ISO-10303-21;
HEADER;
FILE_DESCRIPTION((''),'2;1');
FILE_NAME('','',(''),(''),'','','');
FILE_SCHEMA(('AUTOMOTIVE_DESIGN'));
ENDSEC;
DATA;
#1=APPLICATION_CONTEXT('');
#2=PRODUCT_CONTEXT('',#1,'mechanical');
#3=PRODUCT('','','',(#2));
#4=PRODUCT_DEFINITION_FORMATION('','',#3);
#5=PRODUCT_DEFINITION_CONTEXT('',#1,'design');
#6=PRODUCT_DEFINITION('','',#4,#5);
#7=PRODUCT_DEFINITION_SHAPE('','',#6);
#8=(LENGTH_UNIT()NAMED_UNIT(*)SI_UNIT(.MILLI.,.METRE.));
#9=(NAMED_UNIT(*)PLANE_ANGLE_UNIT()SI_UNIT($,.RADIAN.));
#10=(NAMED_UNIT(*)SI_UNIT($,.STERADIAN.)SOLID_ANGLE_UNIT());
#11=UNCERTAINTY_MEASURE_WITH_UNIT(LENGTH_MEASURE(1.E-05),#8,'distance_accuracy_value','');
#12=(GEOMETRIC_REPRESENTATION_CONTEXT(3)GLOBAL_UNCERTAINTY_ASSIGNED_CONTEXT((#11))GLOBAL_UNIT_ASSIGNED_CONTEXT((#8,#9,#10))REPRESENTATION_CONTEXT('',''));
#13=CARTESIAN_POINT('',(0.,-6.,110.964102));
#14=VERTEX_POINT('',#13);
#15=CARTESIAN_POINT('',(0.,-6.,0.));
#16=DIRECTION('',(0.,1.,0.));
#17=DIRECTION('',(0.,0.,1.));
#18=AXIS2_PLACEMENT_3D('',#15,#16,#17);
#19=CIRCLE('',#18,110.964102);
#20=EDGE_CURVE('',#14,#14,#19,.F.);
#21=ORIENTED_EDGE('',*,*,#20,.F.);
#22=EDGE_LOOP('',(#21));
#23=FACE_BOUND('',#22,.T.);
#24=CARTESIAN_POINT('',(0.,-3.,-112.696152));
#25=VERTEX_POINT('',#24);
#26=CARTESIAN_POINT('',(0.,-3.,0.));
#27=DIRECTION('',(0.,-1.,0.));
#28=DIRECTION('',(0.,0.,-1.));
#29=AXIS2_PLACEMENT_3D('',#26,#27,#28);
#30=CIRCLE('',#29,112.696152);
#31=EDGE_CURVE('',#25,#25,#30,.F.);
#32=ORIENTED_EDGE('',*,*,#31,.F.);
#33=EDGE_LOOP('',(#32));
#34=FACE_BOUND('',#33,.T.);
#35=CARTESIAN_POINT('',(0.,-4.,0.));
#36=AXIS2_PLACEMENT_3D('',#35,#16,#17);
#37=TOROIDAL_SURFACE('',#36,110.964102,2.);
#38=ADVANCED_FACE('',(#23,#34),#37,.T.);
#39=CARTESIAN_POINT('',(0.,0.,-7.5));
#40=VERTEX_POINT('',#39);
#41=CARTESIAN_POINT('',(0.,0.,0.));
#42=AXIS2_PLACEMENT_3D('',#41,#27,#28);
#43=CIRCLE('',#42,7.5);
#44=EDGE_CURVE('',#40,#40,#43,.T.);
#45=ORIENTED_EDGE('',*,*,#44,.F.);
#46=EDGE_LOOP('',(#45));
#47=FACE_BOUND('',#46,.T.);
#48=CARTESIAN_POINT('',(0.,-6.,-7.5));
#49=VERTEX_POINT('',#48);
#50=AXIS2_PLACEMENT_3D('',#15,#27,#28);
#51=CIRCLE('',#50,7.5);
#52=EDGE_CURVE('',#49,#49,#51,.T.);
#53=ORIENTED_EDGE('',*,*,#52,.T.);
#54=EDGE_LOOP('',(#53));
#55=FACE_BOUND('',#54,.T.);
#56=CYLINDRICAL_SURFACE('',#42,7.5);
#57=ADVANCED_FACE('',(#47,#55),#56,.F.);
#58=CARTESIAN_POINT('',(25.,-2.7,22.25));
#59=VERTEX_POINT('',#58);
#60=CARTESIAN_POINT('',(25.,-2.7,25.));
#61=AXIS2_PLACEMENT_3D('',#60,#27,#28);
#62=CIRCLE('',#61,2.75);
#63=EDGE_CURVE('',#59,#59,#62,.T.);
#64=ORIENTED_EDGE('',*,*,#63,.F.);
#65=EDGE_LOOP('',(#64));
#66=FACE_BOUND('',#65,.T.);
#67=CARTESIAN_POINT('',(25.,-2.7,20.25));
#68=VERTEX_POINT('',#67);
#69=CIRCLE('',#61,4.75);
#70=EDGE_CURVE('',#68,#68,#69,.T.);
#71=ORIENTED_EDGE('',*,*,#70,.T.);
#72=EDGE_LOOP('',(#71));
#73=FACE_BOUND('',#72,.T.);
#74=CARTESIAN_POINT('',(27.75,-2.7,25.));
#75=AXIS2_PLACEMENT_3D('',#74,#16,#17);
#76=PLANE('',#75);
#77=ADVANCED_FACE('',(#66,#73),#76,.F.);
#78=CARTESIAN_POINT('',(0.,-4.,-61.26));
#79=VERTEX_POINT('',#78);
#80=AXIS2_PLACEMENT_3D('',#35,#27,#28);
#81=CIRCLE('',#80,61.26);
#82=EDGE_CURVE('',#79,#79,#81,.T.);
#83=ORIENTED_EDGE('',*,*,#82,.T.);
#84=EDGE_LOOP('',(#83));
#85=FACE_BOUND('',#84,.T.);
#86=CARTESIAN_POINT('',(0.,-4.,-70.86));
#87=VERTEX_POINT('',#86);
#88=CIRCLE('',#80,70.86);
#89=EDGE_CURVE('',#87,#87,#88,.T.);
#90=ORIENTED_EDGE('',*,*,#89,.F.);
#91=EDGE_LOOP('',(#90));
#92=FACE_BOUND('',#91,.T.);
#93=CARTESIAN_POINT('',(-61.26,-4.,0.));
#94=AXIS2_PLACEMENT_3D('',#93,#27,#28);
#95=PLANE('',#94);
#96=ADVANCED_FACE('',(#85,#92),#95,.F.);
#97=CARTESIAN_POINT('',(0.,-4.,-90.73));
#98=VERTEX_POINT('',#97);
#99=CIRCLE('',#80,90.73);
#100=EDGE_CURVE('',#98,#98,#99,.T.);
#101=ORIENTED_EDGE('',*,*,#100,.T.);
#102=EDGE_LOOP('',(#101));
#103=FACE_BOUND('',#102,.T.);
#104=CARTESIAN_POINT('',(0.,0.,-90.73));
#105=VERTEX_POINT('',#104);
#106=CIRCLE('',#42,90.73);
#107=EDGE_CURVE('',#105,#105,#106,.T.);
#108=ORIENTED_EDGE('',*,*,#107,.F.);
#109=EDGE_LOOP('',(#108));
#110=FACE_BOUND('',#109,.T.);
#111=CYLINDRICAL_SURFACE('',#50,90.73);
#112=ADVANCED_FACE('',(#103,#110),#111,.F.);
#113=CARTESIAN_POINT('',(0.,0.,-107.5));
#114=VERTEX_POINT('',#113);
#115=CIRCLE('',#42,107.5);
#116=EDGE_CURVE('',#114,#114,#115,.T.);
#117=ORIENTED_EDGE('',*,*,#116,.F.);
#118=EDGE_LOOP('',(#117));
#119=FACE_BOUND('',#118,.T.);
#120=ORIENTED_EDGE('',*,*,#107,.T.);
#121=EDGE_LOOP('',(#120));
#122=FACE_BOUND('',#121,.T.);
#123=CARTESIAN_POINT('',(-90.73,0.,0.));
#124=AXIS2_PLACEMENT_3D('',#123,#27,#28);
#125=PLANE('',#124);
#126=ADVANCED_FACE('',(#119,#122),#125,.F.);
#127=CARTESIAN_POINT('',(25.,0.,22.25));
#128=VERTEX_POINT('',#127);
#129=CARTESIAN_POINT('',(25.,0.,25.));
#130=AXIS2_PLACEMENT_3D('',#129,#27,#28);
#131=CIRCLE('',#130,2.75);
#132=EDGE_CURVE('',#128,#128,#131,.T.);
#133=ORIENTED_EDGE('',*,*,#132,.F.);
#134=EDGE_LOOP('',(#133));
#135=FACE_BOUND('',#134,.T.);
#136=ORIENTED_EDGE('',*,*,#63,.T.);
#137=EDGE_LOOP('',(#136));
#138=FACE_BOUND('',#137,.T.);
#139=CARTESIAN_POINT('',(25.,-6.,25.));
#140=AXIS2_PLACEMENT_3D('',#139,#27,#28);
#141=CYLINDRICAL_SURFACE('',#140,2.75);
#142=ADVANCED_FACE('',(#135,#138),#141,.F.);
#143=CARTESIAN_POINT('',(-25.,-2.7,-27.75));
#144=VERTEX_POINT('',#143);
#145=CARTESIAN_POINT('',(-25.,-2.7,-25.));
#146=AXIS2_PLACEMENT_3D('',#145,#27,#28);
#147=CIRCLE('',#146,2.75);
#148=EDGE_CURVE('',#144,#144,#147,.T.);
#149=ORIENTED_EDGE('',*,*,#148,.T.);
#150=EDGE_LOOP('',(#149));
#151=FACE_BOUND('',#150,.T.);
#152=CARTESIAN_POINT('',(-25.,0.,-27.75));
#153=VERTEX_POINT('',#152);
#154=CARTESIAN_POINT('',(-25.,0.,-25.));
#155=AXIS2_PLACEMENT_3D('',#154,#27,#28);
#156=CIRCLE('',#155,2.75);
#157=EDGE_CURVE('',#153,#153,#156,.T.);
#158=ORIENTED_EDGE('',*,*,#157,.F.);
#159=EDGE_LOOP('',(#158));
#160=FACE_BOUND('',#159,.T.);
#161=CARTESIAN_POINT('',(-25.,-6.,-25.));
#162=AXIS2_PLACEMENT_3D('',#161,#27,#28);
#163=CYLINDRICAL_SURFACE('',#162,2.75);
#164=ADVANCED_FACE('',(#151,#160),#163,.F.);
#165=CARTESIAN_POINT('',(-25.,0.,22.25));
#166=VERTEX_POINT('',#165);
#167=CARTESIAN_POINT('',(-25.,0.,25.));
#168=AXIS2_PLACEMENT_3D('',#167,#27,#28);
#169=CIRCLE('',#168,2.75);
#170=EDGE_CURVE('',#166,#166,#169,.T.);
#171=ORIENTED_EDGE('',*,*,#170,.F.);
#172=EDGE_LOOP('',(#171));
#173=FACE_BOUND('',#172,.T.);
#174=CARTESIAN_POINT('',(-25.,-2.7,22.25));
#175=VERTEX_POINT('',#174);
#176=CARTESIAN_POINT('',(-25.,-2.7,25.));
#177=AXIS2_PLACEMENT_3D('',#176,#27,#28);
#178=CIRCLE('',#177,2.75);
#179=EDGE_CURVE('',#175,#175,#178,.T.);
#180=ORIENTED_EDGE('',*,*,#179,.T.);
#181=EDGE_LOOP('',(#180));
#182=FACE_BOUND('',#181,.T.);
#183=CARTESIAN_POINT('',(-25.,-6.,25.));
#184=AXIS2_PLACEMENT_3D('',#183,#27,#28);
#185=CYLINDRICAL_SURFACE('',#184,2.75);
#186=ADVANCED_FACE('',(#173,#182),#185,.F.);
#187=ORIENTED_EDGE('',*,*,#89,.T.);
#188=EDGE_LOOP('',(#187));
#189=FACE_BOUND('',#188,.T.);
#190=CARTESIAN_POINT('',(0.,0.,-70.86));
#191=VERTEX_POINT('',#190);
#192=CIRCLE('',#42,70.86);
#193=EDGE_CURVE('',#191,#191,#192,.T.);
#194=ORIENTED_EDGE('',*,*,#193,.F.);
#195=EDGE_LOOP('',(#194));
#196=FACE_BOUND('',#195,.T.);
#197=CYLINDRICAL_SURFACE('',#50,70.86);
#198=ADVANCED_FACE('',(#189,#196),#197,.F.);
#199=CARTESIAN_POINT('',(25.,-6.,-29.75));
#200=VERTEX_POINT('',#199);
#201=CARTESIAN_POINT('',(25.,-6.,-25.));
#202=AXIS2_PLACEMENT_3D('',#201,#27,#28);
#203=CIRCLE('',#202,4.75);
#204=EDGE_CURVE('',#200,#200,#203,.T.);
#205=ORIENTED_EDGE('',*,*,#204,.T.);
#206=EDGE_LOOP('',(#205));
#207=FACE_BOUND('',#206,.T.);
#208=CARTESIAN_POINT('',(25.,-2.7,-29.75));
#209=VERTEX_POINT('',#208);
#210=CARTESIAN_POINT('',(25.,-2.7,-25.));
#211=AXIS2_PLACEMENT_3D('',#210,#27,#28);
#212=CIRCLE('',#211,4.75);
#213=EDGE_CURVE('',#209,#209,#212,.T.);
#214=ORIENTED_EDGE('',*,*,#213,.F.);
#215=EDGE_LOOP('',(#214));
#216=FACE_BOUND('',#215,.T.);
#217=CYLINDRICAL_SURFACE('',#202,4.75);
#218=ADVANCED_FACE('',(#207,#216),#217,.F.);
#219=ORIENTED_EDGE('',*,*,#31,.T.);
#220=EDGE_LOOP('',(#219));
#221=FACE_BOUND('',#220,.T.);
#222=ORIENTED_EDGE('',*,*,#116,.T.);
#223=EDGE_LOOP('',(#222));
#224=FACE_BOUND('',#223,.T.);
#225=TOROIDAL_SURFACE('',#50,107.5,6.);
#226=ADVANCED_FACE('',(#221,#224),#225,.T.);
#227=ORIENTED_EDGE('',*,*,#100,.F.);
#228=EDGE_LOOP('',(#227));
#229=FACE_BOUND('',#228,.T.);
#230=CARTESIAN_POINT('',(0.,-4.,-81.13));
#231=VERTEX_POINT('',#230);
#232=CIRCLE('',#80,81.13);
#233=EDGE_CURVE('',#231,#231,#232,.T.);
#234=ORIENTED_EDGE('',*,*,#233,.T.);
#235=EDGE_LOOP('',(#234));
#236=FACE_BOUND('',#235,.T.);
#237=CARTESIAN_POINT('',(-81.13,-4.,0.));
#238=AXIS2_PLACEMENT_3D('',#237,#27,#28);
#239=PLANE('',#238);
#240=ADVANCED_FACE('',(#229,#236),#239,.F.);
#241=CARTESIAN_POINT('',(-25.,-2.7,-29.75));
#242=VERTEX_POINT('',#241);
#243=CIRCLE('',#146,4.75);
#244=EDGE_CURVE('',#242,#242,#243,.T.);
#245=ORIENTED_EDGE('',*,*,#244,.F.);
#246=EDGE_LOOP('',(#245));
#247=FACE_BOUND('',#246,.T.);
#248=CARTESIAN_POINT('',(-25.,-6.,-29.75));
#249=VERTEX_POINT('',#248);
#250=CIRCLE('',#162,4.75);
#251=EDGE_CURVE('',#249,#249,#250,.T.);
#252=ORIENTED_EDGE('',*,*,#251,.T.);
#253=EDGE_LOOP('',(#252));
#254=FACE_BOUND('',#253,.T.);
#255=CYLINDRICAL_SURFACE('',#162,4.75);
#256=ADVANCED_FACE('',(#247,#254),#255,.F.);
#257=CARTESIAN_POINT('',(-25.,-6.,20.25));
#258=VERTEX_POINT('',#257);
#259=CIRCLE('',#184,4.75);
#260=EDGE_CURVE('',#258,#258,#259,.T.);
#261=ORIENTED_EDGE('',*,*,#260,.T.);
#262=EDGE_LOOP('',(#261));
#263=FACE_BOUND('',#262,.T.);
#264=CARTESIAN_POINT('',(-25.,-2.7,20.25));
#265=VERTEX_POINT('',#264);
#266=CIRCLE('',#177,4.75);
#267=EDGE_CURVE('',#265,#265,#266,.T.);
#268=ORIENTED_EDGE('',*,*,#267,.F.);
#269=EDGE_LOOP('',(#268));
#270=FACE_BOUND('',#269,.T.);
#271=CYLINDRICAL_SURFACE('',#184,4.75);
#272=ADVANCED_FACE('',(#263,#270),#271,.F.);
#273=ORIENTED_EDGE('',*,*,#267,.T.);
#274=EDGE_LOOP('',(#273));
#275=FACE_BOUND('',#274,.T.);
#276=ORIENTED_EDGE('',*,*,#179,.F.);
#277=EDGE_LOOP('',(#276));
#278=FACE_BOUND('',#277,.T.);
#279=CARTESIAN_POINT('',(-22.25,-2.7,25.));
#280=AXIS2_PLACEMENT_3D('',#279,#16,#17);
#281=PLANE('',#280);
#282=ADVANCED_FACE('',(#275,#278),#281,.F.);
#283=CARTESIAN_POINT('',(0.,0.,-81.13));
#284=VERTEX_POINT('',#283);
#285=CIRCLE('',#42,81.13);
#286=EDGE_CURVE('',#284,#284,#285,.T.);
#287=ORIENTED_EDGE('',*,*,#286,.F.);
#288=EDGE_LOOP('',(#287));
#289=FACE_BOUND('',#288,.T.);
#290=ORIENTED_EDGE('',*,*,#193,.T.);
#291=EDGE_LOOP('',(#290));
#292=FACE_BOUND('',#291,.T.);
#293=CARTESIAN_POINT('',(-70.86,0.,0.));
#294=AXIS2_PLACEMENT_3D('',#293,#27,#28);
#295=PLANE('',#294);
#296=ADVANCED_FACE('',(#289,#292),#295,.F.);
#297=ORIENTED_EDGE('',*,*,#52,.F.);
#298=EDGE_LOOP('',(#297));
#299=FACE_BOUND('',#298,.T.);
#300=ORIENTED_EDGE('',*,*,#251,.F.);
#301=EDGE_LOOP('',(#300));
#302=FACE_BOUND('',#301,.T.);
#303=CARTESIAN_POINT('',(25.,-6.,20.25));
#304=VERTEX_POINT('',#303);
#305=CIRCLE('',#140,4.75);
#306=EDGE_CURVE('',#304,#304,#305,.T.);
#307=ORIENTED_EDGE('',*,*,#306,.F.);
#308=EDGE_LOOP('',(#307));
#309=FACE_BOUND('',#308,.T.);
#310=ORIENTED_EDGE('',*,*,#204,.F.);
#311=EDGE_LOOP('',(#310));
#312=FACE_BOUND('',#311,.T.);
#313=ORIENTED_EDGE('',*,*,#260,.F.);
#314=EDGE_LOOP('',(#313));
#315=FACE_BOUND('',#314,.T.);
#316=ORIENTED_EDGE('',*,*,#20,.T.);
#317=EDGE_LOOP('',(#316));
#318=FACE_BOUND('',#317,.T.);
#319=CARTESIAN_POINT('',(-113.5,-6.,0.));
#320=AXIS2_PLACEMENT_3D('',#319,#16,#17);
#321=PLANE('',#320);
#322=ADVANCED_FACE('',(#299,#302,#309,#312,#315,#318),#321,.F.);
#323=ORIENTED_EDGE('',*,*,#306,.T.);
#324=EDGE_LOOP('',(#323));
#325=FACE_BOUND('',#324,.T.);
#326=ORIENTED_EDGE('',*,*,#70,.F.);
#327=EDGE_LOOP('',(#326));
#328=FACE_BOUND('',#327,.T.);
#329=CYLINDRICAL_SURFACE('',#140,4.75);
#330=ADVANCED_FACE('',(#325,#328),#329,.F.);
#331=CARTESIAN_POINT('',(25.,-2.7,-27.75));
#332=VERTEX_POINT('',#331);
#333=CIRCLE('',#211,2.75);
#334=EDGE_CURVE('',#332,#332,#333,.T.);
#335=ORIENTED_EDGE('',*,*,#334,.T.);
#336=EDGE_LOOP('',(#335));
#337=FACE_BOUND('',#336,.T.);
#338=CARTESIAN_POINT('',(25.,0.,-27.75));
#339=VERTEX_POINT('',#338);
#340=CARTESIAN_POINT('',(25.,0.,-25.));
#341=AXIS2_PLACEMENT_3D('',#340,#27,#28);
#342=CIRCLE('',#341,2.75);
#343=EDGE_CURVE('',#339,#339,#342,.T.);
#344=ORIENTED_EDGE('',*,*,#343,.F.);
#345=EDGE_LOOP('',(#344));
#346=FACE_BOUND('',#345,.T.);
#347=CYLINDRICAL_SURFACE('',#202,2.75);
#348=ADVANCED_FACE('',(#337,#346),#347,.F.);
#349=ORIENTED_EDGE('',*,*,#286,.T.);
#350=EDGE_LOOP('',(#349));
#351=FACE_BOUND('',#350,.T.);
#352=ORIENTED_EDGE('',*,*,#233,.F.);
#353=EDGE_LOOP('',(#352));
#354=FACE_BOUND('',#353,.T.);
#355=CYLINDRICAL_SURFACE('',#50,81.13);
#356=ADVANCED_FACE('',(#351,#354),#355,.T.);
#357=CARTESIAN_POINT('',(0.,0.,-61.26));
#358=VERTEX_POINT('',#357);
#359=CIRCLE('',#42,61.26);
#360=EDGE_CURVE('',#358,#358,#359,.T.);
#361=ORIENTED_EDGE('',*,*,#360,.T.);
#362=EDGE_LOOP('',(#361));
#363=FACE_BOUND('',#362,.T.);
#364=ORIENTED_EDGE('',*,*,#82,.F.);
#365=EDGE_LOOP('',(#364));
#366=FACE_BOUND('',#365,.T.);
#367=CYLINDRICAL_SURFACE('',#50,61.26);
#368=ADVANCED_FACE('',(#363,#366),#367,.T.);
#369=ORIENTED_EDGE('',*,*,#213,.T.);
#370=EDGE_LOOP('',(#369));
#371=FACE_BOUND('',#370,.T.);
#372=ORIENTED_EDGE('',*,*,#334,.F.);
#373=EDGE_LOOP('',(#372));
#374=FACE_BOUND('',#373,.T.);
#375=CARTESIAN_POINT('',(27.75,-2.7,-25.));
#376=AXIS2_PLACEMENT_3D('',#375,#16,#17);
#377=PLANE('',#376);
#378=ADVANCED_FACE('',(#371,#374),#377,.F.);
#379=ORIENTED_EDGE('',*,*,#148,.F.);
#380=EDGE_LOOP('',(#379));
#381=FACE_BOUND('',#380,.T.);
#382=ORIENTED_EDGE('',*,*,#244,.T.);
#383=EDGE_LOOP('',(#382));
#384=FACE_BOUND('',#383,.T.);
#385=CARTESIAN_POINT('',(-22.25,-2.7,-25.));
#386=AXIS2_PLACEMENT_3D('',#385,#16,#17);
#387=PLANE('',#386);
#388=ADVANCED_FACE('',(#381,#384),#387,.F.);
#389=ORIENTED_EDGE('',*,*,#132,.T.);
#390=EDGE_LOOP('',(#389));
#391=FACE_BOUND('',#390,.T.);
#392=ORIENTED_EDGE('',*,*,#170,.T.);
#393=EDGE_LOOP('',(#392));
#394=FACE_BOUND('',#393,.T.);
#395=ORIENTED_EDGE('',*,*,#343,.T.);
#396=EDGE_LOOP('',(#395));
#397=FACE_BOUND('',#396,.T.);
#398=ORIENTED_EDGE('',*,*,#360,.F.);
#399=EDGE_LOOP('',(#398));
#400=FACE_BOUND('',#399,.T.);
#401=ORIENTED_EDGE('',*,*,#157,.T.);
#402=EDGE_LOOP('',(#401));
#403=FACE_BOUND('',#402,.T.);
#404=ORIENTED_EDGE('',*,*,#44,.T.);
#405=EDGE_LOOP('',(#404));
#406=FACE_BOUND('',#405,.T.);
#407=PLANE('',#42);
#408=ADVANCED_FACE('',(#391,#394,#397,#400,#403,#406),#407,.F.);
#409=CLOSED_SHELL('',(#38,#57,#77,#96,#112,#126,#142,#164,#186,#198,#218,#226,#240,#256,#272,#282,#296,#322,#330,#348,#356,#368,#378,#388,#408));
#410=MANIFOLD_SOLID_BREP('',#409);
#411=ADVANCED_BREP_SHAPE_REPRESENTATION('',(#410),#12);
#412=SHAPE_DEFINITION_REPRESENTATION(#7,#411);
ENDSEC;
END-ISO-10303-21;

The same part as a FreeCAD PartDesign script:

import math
import FreeCAD as App
import Part
import Sketcher
from FreeCAD import Vector


def edges_at(feature, points):
    """Names of the edges that pass closest to the given points."""
    edges = feature.Shape.Edges
    near = lambda p: min(range(len(edges)), key=lambda i: edges[i].distToShape(Part.Vertex(*p))[0])
    return sorted({f"Edge{near(p) + 1}" for p in points})

doc = App.newDocument("Part")
body = doc.addObject("PartDesign::Body", "Body")

# Sketch on XY plane
sketch1 = doc.addObject("Sketcher::SketchObject", "Sketch")
body.addObject(sketch1)
sketch1.AttachmentSupport = (doc.XY_Plane, [""])
sketch1.MapMode = "FlatFace"
sketch1.addGeometry([
    Part.LineSegment(Vector(0, 0, 0), Vector(-61.26, 0, 0)),  # 0
    Part.LineSegment(Vector(-61.26, 0, 0), Vector(-61.26, -4, 0)),  # 1
    Part.LineSegment(Vector(-61.26, -4, 0), Vector(-70.86, -4, 0)),  # 2
    Part.LineSegment(Vector(-70.86, -4, 0), Vector(-70.86, 0, 0)),  # 3
    Part.LineSegment(Vector(-70.86, 0, 0), Vector(-81.13, 0, 0)),  # 4
    Part.LineSegment(Vector(-81.13, 0, 0), Vector(-81.13, -4, 0)),  # 5
    Part.LineSegment(Vector(-81.13, -4, 0), Vector(-90.73, -4, 0)),  # 6
    Part.LineSegment(Vector(-90.73, -4, 0), Vector(-90.73, 0, 0)),  # 7
    Part.LineSegment(Vector(-90.73, 0, 0), Vector(-107.5, 0, 0)),  # 8
    Part.ArcOfCircle(Part.Circle(Vector(-107.5, -6, 0), Vector(0, 0, 1), 6), math.radians(90), math.radians(180)),  # 9
    Part.LineSegment(Vector(-113.5, -6, 0), Vector(0, -6, 0)),  # 10
    Part.LineSegment(Vector(0, -6, 0), Vector(0, 0, 0)),  # 11
], False)
sketch1.addConstraint([
    Sketcher.Constraint("Coincident", 0, 2, 1, 1),
    Sketcher.Constraint("Coincident", 1, 2, 2, 1),
    Sketcher.Constraint("Coincident", 2, 2, 3, 1),
    Sketcher.Constraint("Coincident", 3, 2, 4, 1),
    Sketcher.Constraint("Coincident", 4, 2, 5, 1),
    Sketcher.Constraint("Coincident", 5, 2, 6, 1),
    Sketcher.Constraint("Coincident", 6, 2, 7, 1),
    Sketcher.Constraint("Coincident", 7, 2, 8, 1),
    Sketcher.Constraint("Tangent", 8, 2, 9, 1),
    Sketcher.Constraint("Coincident", 9, 2, 10, 1),
    Sketcher.Constraint("Coincident", 10, 2, 11, 1),
    Sketcher.Constraint("Coincident", 11, 2, 0, 1),
    Sketcher.Constraint("Horizontal", 0),
    Sketcher.Constraint("Vertical", 1),
    Sketcher.Constraint("Horizontal", 2),
    Sketcher.Constraint("Vertical", 3),
    Sketcher.Constraint("Horizontal", 4),
    Sketcher.Constraint("Vertical", 5),
    Sketcher.Constraint("Horizontal", 6),
    Sketcher.Constraint("Vertical", 7),
    Sketcher.Constraint("Horizontal", 8),
    Sketcher.Constraint("Horizontal", 10),
    Sketcher.Constraint("Vertical", 11),
    Sketcher.Constraint("Coincident", 11, 2, -1, 1),
    Sketcher.Constraint("PointOnObject", 3, 2, -1),
    Sketcher.Constraint("PointOnObject", 7, 2, -1),
    Sketcher.Constraint("Horizontal", 2, 2, 5, 2),
    Sketcher.Constraint("Equal", 2, 6),
    Sketcher.Constraint("Radius", 9, 6.0),
    Sketcher.Constraint("DistanceY", 1, 2, 1, 1, 4.0),
    Sketcher.Constraint("DistanceY", 11, 1, 11, 2, 6.0),
    Sketcher.Constraint("DistanceX", 2, 2, 2, 1, 9.6),
    Sketcher.Constraint("DistanceX", 10, 1, 10, 2, 113.5),
    Sketcher.Constraint("DistanceX", 0, 2, 0, 1, 61.26),
    Sketcher.Constraint("DistanceX", 4, 2, 4, 1, 10.27),
])
revolution = doc.addObject("PartDesign::Revolution", "Revolution")
body.addObject(revolution)
revolution.Profile = sketch1
revolution.ReferenceAxis = (sketch1, ["V_Axis"])
revolution.Angle = 360

# Sketch on XZ plane
sketch2 = doc.addObject("Sketcher::SketchObject", "Sketch001")
body.addObject(sketch2)
sketch2.AttachmentSupport = (doc.XZ_Plane, [""])
sketch2.MapMode = "FlatFace"
sketch2.AttachmentOffset = App.Placement(Vector(0, 0, 6), App.Rotation())
sketch2.addGeometry([
    Part.Circle(Vector(-25, 25, 0), Vector(0, 0, 1), 2.75),
    Part.Circle(Vector(25, 25, 0), Vector(0, 0, 1), 2.75),
    Part.Circle(Vector(25, -25, 0), Vector(0, 0, 1), 2.75),
    Part.Circle(Vector(-25, -25, 0), Vector(0, 0, 1), 2.75),
], False)
sketch2.addConstraint([
    Sketcher.Constraint("Equal", 0, 1),
    Sketcher.Constraint("Equal", 1, 2),
    Sketcher.Constraint("Equal", 2, 3),
    Sketcher.Constraint("Symmetric", 0, 3, 2, 3, -1, 1),
    Sketcher.Constraint("Symmetric", 1, 3, 3, 3, -1, 1),
    Sketcher.Constraint("Symmetric", 0, 3, 1, 3, -2),
    Sketcher.Constraint("Diameter", 0, 5.5),
    Sketcher.Constraint("DistanceX", 0, 3, -1, 1, 25.0),
    Sketcher.Constraint("DistanceY", -1, 1, 0, 3, 25.0),
])
doc.recompute()
hole = doc.addObject("PartDesign::Hole", "Hole")
body.addObject(hole)
hole.Profile = sketch2
hole.ThreadType = "None"
hole.Diameter = 5.5
hole.DepthType = "ThroughAll"
hole.HoleCutType = "Counterbore"
hole.HoleCutDiameter = 9.5
hole.HoleCutDepth = 3.3
doc.recompute()

fillet = doc.addObject("PartDesign::Fillet", "Fillet")
body.addObject(fillet)
fillet.Base = (hole, edges_at(hole, [(113.5, -6, 0)]))
fillet.Radius = 2

# Sketch on XZ plane
sketch3 = doc.addObject("Sketcher::SketchObject", "Sketch002")
body.addObject(sketch3)
sketch3.AttachmentSupport = (doc.XZ_Plane, [""])
sketch3.MapMode = "FlatFace"
sketch3.AttachmentOffset = App.Placement(Vector(0, 0, 6), App.Rotation())
sketch3.addGeometry(Part.Circle(Vector(0, 0, 0), Vector(0, 0, 1), 7.5), False)
sketch3.addConstraint([
    Sketcher.Constraint("Coincident", 0, 3, -1, 1),
    Sketcher.Constraint("Diameter", 0, 15.0),
])
pocket1 = doc.addObject("PartDesign::Pocket", "Pocket")
body.addObject(pocket1)
pocket1.Profile = sketch3
pocket1.Type = "ThroughAll"

doc.recompute()
